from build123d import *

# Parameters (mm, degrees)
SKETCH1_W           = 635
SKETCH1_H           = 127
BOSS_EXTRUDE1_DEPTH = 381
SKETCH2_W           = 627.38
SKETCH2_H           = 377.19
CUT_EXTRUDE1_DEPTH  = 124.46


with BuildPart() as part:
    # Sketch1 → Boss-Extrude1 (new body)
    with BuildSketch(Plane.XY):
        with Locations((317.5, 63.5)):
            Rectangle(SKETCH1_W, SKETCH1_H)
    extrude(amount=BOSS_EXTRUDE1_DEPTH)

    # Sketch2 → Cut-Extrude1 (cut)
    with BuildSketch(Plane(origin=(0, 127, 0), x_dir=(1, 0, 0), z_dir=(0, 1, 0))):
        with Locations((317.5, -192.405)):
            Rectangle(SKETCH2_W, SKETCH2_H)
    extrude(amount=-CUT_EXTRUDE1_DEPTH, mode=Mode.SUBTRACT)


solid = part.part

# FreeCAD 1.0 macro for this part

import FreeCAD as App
import Part
import Sketcher
Q = App.Units.Quantity


def add_polygon(sketch, points):
    """Adds a closed chain of lines whose ends are joined by coincident constraints."""
    first, n = sketch.GeometryCount, len(points)
    for a, b in zip(points, points[1:] + points[:1]):
        sketch.addGeometry(Part.LineSegment(App.Vector(*a, 0), App.Vector(*b, 0)), False)
    for i in range(n):
        sketch.addConstraint(Sketcher.Constraint("Coincident", first + i, 2, first + (i + 1) % n, 1))

doc = App.newDocument("Part")
params = doc.addObject("Spreadsheet::Sheet", "Params")
for row, (alias, value) in enumerate([
    ("sketch1_width", "25 in"),
    ("sketch1_height", "5 in"),
    ("pad1_length", "15 in"),
    ("sketch2_width", "24.7 in"),
    ("sketch2_height", "14.85 in"),
    ("pocket1_length", "4.9 in"),
], start=1):
    params.set(f"A{row}", alias)
    params.set(f"B{row}", "=" + value)
    params.setAlias(f"B{row}", alias)

body = doc.addObject("PartDesign::Body", "Body")

sketch1 = doc.addObject("Sketcher::SketchObject", "Sketch")
body.addObject(sketch1)
sketch1.AttachmentSupport = (doc.XY_Plane, [""])
sketch1.MapMode = "FlatFace"
add_polygon(sketch1, [(0, 127), (0, 0), (635, 0), (635, 127)])
sketch1.addConstraint([
    Sketcher.Constraint("Vertical", 0),
    Sketcher.Constraint("Horizontal", 1),
    Sketcher.Constraint("Vertical", 2),
    Sketcher.Constraint("Horizontal", 3),
    Sketcher.Constraint("Coincident", 0, 2, -1, 1),
    Sketcher.Constraint("DistanceX", 1, 1, 1, 2, Q("25 in")),
    Sketcher.Constraint("DistanceY", 0, 2, 0, 1, Q("5 in")),
])
sketch1.setExpression("Constraints[9]", "Params.sketch1_width")
sketch1.setExpression("Constraints[10]", "Params.sketch1_height")
pad1 = doc.addObject("PartDesign::Pad", "Pad")
body.addObject(pad1)
pad1.Profile = sketch1
pad1.setExpression("Length", "Params.pad1_length")

sketch2 = doc.addObject("Sketcher::SketchObject", "Sketch001")
body.addObject(sketch2)
sketch2.AttachmentSupport = (doc.XZ_Plane, [""])
sketch2.MapMode = "FlatFace"
sketch2.AttachmentOffset = App.Placement(App.Vector(0, 0, -5 * 25.4), App.Rotation())
add_polygon(sketch2, [(4, 4), (4, 381), (631, 381), (631, 4)])
sketch2.addConstraint([
    Sketcher.Constraint("Vertical", 0),
    Sketcher.Constraint("Horizontal", 1),
    Sketcher.Constraint("Vertical", 2),
    Sketcher.Constraint("Horizontal", 3),
    Sketcher.Constraint("DistanceX", 1, 1, 1, 2, Q("24.7 in")),
    Sketcher.Constraint("DistanceY", -1, 1, 0, 2, Q("15 in")),
    Sketcher.Constraint("DistanceY", 0, 1, 0, 2, Q("14.85 in")),
    Sketcher.Constraint("DistanceX", -1, 1, 0, 2, Q("0.15 in")),
])
sketch2.setExpression("Constraints[8]", "Params.sketch2_width")
sketch2.setExpression("Constraints[10]", "Params.sketch2_height")
pocket1 = doc.addObject("PartDesign::Pocket", "Pocket")
body.addObject(pocket1)
pocket1.Profile = sketch2
pocket1.setExpression("Length", "Params.pocket1_length")
pocket1.Reversed = True

doc.recompute()
